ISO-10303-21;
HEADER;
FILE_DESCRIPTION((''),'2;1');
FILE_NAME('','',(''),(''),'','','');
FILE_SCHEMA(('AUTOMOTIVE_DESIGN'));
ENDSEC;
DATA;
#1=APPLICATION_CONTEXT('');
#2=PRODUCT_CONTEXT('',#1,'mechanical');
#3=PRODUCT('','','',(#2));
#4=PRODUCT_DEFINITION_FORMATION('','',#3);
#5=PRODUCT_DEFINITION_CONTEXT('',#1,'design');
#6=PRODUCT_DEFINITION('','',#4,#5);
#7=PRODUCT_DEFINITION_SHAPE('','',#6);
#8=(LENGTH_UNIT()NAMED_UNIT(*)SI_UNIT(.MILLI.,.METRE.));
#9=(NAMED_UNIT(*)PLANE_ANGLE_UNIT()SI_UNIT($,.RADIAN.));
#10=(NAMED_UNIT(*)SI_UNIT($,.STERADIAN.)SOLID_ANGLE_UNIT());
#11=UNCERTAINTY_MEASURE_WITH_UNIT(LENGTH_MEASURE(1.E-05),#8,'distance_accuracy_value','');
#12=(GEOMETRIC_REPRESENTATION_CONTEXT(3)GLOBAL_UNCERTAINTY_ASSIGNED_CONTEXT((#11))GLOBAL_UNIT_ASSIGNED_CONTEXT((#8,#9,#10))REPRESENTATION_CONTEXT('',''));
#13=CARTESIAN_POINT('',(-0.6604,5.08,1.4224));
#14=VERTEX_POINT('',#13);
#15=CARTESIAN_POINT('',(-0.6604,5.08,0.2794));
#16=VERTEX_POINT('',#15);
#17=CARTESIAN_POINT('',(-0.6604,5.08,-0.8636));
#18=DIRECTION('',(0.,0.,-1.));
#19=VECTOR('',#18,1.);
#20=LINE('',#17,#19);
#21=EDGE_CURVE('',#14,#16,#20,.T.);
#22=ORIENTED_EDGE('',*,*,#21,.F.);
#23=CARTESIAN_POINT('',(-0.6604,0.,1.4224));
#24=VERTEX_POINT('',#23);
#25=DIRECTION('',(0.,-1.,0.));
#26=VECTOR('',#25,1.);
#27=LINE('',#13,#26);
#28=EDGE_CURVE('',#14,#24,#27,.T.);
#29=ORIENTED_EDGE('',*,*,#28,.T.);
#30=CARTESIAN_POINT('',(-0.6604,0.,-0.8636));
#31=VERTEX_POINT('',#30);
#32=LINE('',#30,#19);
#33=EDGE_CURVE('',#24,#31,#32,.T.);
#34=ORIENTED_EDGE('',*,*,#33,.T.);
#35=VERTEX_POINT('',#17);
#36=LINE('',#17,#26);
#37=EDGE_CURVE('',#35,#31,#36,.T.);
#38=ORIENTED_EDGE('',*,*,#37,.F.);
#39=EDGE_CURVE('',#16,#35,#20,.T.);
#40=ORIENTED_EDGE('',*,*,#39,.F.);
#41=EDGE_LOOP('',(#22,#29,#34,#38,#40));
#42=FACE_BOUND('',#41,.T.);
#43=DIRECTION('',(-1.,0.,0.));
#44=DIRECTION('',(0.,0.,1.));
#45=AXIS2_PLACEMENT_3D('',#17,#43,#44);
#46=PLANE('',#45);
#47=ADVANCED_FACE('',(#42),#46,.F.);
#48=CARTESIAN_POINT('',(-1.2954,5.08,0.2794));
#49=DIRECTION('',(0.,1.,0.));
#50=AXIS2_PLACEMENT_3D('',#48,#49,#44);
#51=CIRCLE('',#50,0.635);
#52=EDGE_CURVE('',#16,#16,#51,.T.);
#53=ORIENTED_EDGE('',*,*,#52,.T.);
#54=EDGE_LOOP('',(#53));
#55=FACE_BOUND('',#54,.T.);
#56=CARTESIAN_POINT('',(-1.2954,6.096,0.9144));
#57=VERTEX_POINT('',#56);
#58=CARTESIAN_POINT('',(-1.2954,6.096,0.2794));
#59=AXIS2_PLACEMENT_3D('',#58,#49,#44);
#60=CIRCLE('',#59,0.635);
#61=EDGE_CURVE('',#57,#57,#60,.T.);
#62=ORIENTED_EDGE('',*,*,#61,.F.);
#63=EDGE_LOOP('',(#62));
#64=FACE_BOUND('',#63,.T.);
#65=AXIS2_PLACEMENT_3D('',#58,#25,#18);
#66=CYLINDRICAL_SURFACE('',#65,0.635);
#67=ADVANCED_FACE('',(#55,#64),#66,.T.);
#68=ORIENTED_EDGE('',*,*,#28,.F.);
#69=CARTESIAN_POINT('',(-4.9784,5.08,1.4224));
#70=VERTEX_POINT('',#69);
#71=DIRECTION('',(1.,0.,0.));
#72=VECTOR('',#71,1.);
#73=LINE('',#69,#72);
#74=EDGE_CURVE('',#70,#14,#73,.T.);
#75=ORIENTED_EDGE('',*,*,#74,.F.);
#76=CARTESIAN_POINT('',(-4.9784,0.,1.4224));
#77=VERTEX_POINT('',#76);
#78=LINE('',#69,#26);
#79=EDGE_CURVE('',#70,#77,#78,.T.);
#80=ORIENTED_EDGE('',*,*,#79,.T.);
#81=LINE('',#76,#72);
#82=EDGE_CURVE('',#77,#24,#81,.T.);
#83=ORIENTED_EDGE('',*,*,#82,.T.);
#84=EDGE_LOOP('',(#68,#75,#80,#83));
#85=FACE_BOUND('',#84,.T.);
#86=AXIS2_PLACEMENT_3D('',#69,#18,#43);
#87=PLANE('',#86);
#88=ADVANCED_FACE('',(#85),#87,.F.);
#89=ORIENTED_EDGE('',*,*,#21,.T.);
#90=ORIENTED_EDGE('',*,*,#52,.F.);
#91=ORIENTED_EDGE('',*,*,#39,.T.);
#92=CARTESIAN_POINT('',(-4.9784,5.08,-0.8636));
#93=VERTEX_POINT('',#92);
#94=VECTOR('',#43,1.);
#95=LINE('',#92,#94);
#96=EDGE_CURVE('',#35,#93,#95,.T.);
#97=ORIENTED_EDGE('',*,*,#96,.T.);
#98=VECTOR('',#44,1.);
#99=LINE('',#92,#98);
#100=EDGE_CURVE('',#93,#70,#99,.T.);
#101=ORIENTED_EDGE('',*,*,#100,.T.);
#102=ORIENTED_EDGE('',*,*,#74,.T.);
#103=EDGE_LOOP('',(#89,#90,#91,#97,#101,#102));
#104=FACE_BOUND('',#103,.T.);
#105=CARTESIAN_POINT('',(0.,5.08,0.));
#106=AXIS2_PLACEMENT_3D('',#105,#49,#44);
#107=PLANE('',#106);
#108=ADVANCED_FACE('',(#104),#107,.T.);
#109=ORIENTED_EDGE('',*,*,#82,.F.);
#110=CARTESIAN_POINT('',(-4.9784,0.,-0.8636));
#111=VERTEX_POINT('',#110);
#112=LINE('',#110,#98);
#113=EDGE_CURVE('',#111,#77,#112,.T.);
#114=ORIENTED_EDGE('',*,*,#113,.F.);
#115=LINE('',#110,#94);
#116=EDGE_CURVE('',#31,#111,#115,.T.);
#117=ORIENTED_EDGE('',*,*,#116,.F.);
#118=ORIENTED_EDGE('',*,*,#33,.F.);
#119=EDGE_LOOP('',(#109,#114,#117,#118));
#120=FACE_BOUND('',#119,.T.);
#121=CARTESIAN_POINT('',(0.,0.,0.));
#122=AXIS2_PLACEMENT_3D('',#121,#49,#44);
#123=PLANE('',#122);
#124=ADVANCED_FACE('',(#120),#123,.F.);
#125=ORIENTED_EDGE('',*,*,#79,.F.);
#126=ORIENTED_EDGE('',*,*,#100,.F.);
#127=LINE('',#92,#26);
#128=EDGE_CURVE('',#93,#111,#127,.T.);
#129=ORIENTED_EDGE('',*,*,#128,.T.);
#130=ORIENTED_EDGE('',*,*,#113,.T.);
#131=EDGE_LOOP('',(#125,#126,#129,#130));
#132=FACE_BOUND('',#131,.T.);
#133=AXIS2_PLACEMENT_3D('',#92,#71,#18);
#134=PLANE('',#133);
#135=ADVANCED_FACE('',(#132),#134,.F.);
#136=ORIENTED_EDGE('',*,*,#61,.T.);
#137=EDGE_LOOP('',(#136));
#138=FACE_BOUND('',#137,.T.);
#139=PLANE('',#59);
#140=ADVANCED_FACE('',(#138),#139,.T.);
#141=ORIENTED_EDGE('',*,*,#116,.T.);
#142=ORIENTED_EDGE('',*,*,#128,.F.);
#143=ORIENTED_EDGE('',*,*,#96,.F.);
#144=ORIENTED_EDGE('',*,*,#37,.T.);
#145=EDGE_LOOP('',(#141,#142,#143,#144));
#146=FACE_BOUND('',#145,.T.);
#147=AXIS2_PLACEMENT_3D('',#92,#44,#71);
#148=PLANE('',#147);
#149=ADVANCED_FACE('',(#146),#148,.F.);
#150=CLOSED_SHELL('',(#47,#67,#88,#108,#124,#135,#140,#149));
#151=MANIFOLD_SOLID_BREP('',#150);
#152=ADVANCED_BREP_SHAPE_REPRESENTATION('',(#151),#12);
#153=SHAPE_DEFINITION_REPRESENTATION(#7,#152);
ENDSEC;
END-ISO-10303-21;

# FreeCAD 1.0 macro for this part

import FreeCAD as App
import Part
import Sketcher

V = App.Vector
Q = App.Units.Quantity

doc = App.newDocument("Part")
body = doc.addObject("PartDesign::Body", "Body")

sketch1 = body.newObject("Sketcher::SketchObject", "Sketch")
sketch1.AttachmentSupport = (doc.getObject("XZ_Plane"), [""])
sketch1.MapMode = "FlatFace"
sketch1.addGeometry([
    Part.LineSegment(V(-4.9784, -0.8636, 0), V(-4.9784, 1.4224, 0)),
    Part.LineSegment(V(-4.9784, 1.4224, 0), V(-0.6604, 1.4224, 0)),
    Part.LineSegment(V(-0.6604, 1.4224, 0), V(-0.6604, -0.8636, 0)),
    Part.LineSegment(V(-0.6604, -0.8636, 0), V(-4.9784, -0.8636, 0)),
], False)
sketch1.addConstraint([
    Sketcher.Constraint("Coincident", 0, 2, 1, 1),
    Sketcher.Constraint("Coincident", 1, 2, 2, 1),
    Sketcher.Constraint("Coincident", 2, 2, 3, 1),
    Sketcher.Constraint("Coincident", 3, 2, 0, 1),
    Sketcher.Constraint("Vertical", 0),
    Sketcher.Constraint("Horizontal", 1),
    Sketcher.Constraint("Vertical", 2),
    Sketcher.Constraint("Horizontal", 3),
    Sketcher.Constraint("DistanceX", 1, 1, 1, 2, Q("0.17 in")),
    Sketcher.Constraint("DistanceY", 0, 1, 0, 2, Q("0.09 in")),
    Sketcher.Constraint("DistanceX", 0, 2, -1, 1, Q("0.196 in")),
    Sketcher.Constraint("DistanceY", -1, 1, 0, 2, Q("0.056 in")),
])
pad1 = body.newObject("PartDesign::Pad", "Pad")
pad1.Profile = sketch1
pad1.Length = Q("0.2 in")
pad1.Reversed = True

sketch2 = body.newObject("Sketcher::SketchObject", "Sketch001")
sketch2.AttachmentSupport = (doc.getObject("XZ_Plane"), [""])
sketch2.MapMode = "FlatFace"
sketch2.AttachmentOffset = App.Placement(V(0, 0, -0.2 * 25.4), App.Rotation())
sketch2.addGeometry(Part.Circle(V(-1.2954, 0.2794, 0), V(0, 0, 1), 0.635), False)
sketch2.addConstraint([
    Sketcher.Constraint("Diameter", 0, Q("0.05 in")),
    Sketcher.Constraint("DistanceX", 0, 3, -1, 1, Q("0.051 in")),
    Sketcher.Constraint("DistanceY", -1, 1, 0, 3, Q("0.011 in")),
])
pad2 = body.newObject("PartDesign::Pad", "Pad001")
pad2.Profile = sketch2
pad2.Length = Q("0.04 in")
pad2.Reversed = True

doc.recompute()
